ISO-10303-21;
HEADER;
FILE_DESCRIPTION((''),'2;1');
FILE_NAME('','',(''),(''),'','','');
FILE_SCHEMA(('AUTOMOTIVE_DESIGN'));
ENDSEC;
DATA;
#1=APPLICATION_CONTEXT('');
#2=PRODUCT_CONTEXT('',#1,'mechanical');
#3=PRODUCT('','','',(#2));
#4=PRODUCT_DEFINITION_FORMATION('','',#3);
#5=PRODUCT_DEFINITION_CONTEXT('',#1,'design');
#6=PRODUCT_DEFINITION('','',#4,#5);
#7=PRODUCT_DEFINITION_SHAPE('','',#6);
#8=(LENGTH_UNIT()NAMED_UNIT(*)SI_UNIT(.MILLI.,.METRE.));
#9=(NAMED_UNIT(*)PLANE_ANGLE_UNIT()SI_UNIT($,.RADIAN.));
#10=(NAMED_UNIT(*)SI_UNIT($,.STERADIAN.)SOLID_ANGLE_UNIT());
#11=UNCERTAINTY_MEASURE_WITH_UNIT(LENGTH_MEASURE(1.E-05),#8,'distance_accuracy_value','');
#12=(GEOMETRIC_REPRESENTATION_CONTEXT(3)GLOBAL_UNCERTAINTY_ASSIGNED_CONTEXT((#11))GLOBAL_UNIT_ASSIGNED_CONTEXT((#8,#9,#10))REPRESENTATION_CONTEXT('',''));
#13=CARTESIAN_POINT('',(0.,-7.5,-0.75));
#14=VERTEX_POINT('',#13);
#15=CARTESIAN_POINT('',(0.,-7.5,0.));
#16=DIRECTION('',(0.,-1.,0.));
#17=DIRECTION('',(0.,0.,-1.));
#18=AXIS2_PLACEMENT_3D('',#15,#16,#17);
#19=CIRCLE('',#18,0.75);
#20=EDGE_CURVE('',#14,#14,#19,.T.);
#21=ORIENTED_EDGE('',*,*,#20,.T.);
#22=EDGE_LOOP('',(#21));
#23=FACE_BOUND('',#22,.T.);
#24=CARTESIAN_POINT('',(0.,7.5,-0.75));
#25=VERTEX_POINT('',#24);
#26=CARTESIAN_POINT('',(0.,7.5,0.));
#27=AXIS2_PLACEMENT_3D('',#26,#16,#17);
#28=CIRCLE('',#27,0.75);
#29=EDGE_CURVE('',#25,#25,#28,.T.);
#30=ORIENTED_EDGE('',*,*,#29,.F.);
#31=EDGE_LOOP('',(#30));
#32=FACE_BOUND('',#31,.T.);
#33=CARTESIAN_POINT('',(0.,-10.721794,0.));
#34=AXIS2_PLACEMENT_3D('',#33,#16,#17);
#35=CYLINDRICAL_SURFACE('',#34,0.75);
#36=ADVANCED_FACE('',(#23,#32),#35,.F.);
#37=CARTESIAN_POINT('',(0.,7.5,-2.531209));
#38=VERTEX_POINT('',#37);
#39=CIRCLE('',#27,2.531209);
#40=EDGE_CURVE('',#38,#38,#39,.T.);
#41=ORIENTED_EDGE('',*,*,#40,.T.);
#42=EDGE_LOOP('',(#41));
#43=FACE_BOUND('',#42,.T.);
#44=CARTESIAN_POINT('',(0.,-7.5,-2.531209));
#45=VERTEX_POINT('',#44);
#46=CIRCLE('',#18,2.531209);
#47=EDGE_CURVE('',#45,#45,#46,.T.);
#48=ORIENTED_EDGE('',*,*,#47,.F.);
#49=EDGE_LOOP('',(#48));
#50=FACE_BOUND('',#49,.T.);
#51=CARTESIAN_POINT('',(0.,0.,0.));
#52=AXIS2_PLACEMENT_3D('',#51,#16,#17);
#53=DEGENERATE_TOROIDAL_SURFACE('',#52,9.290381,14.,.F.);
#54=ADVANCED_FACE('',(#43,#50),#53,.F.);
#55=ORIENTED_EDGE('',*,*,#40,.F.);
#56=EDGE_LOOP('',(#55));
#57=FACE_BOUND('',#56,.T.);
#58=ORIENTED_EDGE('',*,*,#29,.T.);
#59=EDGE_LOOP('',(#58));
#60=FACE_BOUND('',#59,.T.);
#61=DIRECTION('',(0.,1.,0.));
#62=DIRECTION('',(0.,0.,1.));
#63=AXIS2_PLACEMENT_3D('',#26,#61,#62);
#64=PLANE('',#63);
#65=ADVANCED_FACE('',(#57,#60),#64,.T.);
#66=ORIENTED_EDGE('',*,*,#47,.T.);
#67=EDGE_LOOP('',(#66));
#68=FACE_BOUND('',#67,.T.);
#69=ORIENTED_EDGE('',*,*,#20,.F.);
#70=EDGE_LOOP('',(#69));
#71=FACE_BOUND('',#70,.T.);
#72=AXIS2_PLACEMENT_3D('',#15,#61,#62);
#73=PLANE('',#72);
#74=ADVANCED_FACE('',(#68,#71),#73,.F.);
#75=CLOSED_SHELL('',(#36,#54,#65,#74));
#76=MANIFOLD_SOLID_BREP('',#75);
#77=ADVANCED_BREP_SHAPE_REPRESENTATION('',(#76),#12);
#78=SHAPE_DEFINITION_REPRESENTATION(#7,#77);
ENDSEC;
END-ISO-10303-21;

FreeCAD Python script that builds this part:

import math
import FreeCAD as App
import Part
import Sketcher

V = App.Vector

doc = App.newDocument("Part")
params = doc.addObject("Spreadsheet::Sheet", "Params")
for row, (alias, value) in enumerate([
    ("sketch1_radius", "14 mm"),
    ("sketch1_height", "15 mm"),
    ("revolution_angle", "360 deg"),
], start=1):
    params.set(f"A{row}", alias)
    params.set(f"B{row}", "=" + value)
    params.setAlias(f"B{row}", alias)

body = doc.addObject("PartDesign::Body", "Body")

# Sketch on XY plane
sketch1 = body.newObject("Sketcher::SketchObject", "Sketch")
sketch1.AttachmentSupport = (doc.getObject("XY_Plane"), [""])
sketch1.MapMode = "FlatFace"
sketch1.addGeometry(Part.LineSegment(V(-0.8, 7.5, 0), V(-2.5, 7.5, 0)), False)
sketch1.addGeometry(Part.ArcOfCircle(Part.Circle(V(9.3, 0, 0), V(0, 0, 1), 14), math.radians(148), math.radians(212)), False)
sketch1.addGeometry(Part.LineSegment(V(-2.5, -7.5, 0), V(-0.8, -7.5, 0)), False)
sketch1.addGeometry(Part.LineSegment(V(-0.8, -7.5, 0), V(-0.8, 7.5, 0)), False)
sketch1.addConstraint(Sketcher.Constraint("Coincident", 0, 2, 1, 1))
sketch1.addConstraint(Sketcher.Constraint("Coincident", 1, 2, 2, 1))
sketch1.addConstraint(Sketcher.Constraint("Coincident", 2, 2, 3, 1))
sketch1.addConstraint(Sketcher.Constraint("Coincident", 3, 2, 0, 1))
sketch1.addConstraint(Sketcher.Constraint("Horizontal", 0))
sketch1.addConstraint(Sketcher.Constraint("Horizontal", 2))
sketch1.addConstraint(Sketcher.Constraint("Vertical", 3))
sketch1.addConstraint(Sketcher.Constraint("Symmetric", 0, 2, 1, 2, -1))
sketch1.addConstraint(Sketcher.Constraint("Radius", 1, 14.0))
sketch1.addConstraint(Sketcher.Constraint("DistanceY", 3, 1, 3, 2, 15.0))
sketch1.addConstraint(Sketcher.Constraint("DistanceX", 2, 2, -1, 1, 0.75))
sketch1.addConstraint(Sketcher.Constraint("DistanceX", 0, 2, 0, 1, 1.781209))
sketch1.setExpression("Constraints[8]", "Params.sketch1_radius")
sketch1.setExpression("Constraints[9]", "Params.sketch1_height")
revolution = body.newObject("PartDesign::Revolution", "Revolution")
revolution.Profile = sketch1
revolution.ReferenceAxis = (sketch1, ["V_Axis"])
revolution.setExpression("Angle", "Params.revolution_angle")

doc.recompute()
